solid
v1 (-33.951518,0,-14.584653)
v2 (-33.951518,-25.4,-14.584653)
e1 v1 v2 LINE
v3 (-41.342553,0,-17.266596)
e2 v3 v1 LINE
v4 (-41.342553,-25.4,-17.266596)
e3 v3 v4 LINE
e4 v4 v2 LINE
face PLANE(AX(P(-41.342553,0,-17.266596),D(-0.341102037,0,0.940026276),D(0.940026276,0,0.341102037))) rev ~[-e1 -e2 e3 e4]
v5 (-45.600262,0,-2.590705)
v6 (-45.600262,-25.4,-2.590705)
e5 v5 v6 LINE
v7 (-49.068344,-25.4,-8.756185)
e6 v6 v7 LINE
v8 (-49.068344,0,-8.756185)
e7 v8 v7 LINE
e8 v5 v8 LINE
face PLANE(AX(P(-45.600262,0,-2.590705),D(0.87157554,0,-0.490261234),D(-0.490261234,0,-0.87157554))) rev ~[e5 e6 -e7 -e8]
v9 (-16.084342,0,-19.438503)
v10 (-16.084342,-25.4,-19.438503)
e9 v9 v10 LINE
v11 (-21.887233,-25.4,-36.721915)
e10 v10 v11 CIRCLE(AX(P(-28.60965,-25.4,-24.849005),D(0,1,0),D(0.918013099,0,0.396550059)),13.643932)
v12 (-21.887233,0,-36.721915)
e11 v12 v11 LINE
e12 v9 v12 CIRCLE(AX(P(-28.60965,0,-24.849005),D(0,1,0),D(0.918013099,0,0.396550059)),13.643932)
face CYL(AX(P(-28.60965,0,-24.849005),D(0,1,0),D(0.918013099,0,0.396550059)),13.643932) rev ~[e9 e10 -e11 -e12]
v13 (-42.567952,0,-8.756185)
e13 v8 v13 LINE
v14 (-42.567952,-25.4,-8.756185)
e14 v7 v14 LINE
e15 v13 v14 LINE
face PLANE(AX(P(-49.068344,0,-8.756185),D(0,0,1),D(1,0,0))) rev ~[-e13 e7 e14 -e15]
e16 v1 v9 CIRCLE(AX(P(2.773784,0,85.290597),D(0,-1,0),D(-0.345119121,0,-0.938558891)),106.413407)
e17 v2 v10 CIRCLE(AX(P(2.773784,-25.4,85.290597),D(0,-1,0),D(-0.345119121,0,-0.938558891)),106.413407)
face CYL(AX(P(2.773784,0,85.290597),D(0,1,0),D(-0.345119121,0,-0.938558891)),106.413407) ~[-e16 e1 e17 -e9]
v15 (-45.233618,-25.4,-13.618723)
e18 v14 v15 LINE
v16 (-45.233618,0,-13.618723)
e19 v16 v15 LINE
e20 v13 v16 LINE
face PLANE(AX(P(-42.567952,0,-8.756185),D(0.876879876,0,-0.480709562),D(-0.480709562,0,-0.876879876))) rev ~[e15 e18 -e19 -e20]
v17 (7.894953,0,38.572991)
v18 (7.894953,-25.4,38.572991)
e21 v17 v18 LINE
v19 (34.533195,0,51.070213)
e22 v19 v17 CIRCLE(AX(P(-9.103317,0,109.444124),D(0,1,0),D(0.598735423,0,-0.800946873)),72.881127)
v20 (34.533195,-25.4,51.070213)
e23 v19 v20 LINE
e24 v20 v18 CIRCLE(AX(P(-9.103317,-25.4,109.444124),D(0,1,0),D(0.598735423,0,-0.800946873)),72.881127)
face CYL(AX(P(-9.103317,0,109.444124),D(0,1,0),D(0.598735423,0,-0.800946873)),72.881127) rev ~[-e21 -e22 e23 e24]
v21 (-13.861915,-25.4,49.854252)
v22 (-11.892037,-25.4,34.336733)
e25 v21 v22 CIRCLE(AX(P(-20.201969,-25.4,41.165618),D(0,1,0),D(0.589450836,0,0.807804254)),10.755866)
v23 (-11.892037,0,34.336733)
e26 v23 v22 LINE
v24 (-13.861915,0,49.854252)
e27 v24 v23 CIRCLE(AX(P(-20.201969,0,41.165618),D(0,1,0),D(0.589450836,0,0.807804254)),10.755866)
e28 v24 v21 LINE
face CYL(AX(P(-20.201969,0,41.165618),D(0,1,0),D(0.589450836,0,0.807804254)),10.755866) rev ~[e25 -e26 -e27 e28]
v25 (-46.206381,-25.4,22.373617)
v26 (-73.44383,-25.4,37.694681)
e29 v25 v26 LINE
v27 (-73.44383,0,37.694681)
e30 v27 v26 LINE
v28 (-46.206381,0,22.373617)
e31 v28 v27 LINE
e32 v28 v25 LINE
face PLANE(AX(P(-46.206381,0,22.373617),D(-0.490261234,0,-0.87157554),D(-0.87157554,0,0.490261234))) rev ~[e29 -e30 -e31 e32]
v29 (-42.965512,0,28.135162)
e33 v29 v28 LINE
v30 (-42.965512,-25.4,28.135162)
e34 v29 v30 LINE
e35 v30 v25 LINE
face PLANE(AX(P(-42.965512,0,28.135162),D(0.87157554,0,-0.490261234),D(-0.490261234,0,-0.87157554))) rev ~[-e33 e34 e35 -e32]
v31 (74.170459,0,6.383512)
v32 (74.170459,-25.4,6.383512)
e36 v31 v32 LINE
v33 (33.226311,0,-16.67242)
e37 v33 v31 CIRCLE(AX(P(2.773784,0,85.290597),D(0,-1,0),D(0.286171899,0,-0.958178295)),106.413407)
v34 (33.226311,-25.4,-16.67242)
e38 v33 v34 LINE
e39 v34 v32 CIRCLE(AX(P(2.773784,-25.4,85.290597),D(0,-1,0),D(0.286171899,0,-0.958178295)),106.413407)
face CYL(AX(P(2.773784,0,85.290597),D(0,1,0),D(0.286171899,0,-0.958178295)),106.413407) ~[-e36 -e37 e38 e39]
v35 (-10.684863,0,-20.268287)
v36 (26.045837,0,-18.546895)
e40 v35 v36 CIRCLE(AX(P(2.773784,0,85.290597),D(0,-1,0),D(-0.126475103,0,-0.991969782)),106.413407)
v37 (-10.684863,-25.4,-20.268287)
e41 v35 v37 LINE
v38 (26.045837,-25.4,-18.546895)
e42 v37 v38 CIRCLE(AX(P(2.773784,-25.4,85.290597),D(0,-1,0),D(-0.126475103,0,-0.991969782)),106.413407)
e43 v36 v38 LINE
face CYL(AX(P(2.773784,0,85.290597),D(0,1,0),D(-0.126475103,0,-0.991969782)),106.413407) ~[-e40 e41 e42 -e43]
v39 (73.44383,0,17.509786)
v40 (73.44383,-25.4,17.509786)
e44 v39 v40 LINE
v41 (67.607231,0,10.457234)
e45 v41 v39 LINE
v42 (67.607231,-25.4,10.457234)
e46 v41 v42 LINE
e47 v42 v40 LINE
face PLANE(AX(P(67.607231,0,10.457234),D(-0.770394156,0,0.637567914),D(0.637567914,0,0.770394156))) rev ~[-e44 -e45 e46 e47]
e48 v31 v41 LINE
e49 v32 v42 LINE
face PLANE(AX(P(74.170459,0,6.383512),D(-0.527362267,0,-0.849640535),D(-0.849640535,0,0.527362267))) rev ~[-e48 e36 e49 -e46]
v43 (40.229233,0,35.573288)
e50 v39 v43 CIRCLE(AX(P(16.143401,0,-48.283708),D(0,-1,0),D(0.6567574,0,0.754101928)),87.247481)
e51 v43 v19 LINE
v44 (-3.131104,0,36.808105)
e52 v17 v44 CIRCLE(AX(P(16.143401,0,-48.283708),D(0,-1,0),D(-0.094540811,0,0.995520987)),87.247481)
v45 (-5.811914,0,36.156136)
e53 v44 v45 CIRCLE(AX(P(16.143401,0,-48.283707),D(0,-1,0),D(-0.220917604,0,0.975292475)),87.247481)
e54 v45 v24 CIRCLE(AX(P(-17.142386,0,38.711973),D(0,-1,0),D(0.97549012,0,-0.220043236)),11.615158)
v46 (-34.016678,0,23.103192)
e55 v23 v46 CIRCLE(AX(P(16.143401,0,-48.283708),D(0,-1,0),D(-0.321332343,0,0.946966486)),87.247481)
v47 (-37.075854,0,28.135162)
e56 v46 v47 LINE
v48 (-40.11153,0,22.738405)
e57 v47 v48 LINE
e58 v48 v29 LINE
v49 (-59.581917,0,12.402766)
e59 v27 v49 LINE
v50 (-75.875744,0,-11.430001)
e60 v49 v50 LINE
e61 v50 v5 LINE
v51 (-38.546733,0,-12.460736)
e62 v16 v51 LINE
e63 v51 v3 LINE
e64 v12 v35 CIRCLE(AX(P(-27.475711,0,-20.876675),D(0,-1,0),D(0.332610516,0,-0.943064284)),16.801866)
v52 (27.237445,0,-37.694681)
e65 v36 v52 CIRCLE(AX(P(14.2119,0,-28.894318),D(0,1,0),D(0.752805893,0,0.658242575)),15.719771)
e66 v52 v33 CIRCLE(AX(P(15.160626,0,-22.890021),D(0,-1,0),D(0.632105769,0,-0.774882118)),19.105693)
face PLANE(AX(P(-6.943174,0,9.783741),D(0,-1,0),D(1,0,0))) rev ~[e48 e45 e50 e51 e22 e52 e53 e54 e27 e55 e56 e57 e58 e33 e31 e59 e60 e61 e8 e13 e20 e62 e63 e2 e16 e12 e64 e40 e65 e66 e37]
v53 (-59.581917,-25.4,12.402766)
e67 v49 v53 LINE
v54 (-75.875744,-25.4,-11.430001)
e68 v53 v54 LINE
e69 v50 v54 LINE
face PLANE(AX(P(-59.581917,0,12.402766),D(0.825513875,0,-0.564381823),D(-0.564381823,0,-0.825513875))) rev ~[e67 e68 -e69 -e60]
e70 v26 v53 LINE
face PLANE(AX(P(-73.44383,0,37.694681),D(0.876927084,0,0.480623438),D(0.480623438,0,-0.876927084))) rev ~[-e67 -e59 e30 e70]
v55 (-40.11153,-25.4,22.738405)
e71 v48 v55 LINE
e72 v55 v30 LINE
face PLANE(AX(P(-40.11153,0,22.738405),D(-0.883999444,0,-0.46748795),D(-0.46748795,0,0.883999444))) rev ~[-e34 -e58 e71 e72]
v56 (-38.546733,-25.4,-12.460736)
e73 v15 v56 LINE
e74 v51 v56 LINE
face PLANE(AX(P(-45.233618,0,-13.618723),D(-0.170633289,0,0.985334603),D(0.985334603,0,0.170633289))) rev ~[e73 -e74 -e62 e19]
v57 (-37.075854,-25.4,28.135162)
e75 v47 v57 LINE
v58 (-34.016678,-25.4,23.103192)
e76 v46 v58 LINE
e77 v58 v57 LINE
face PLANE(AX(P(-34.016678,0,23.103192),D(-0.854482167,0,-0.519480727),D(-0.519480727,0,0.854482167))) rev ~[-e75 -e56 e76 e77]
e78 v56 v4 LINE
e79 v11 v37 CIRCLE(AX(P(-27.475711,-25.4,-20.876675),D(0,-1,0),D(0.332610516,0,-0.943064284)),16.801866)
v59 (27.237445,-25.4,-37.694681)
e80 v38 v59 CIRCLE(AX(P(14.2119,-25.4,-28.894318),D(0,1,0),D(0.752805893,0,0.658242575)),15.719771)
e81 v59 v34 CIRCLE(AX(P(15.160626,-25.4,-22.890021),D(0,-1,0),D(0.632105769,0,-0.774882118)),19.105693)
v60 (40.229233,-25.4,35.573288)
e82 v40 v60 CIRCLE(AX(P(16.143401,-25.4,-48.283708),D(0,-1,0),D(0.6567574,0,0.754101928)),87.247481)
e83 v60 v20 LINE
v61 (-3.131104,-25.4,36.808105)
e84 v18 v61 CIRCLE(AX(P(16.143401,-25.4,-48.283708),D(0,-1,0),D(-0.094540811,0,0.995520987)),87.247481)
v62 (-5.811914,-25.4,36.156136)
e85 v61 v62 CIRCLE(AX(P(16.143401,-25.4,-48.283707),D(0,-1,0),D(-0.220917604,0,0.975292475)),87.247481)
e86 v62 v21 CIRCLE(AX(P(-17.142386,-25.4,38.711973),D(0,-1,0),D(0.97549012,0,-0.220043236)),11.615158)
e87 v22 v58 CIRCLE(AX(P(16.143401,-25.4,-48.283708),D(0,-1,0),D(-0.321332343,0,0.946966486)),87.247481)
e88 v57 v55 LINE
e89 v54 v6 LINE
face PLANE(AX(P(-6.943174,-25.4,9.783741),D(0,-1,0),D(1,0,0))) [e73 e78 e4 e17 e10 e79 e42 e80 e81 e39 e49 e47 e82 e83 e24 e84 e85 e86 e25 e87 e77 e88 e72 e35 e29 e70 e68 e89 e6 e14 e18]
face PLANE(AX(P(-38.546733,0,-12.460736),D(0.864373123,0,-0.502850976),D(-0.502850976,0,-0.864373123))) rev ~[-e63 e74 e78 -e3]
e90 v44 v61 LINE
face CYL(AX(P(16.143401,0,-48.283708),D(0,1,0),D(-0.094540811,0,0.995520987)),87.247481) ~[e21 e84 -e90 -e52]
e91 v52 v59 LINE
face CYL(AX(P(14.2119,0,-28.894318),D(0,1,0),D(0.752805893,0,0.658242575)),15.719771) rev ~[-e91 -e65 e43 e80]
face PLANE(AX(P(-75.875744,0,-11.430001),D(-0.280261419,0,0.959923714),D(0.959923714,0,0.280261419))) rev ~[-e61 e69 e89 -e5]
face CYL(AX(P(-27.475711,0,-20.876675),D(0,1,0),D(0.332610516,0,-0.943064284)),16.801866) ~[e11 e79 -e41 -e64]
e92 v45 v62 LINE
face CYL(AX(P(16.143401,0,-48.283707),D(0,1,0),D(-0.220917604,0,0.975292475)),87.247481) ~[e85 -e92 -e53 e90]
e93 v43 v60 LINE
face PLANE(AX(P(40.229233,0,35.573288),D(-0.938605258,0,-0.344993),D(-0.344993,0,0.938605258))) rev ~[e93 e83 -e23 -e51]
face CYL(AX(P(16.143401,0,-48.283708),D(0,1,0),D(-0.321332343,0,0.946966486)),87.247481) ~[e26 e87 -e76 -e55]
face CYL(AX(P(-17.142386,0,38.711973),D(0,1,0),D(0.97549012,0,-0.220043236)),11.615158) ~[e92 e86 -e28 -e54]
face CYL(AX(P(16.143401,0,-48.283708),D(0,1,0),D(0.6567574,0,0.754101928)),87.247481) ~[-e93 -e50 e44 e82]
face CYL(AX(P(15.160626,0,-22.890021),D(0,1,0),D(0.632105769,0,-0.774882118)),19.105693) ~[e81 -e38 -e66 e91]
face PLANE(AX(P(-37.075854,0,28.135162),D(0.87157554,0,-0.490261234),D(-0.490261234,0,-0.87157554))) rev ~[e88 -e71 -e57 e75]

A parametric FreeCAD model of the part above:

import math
import FreeCAD as App
import Part
import Sketcher

V = App.Vector
Q = App.Units.Quantity

doc = App.newDocument("Part")
params = doc.addObject("Spreadsheet::Sheet", "Params")
for row, (alias, value) in enumerate([
    ("pad1_length", "1 in"),
], start=1):
    params.set(f"A{row}", alias)
    params.set(f"B{row}", "=" + value)
    params.setAlias(f"B{row}", alias)

body = doc.addObject("PartDesign::Body", "Body")

# Sketch on XZ plane
sketch1 = doc.addObject("Sketcher::SketchObject", "Sketch")
body.addObject(sketch1)
sketch1.AttachmentSupport = (doc.XZ_Plane, [""])
sketch1.MapMode = "FlatFace"
sketch1.addGeometry([
    Part.LineSegment(V(-46.2, 22.4, 0), V(-73.4, 37.7, 0)),  # 0
    Part.LineSegment(V(-73.4, 37.7, 0), V(-59.6, 12.4, 0)),  # 1
    Part.LineSegment(V(-59.6, 12.4, 0), V(-75.9, -11.4, 0)),  # 2
    Part.LineSegment(V(-75.9, -11.4, 0), V(-45.6, -2.6, 0)),  # 3
    Part.LineSegment(V(-45.6, -2.6, 0), V(-49.1, -8.8, 0)),  # 4
    Part.LineSegment(V(-49.1, -8.8, 0), V(-42.6, -8.8, 0)),  # 5
    Part.LineSegment(V(-42.6, -8.8, 0), V(-45.2, -13.6, 0)),  # 6
    Part.LineSegment(V(-45.2, -13.6, 0), V(-38.5, -12.5, 0)),  # 7
    Part.LineSegment(V(-38.5, -12.5, 0), V(-41.3, -17.3, 0)),  # 8
    Part.LineSegment(V(-41.3, -17.3, 0), V(-34, -14.6, 0)),  # 9
    Part.ArcOfCircle(Part.Circle(V(2.8, 85.3, 0), V(0, 0, 1), 106.4), math.radians(-110.19), math.radians(-100.21)),  # 10
    Part.ArcOfCircle(Part.Circle(V(-28.6, -24.8, 0), V(0, 0, 1), 13.6), math.radians(-60), math.radians(23)),  # 11
    Part.ArcOfCircle(Part.Circle(V(-27.5, -20.9, 0), V(0, 0, 1), 16.8), math.radians(-71), math.radians(2)),  # 12
    Part.ArcOfCircle(Part.Circle(V(2.8, 85.3, 0), V(0, 0, 1), 106.4), math.radians(-97.27), math.radians(-77.37)),  # 13
    Part.ArcOfCircle(Part.Circle(V(14.2, -28.9, 0), V(0, 0, 1), 15.7), math.radians(-34), math.radians(41)),  # 14
    Part.ArcOfCircle(Part.Circle(V(15.2, -22.9, 0), V(0, 0, 1), 19.1), math.radians(-51), math.radians(19)),  # 15
    Part.ArcOfCircle(Part.Circle(V(2.8, 85.3, 0), V(0, 0, 1), 106.4), math.radians(-73), math.radians(-48)),  # 16
    Part.LineSegment(V(74.2, 6.4, 0), V(67.6, 10.5, 0)),  # 17
    Part.LineSegment(V(67.6, 10.5, 0), V(73.4, 17.5, 0)),  # 18
    Part.ArcOfCircle(Part.Circle(V(16.1, -48.3, 0), V(0, 0, 1), 87.2), math.radians(49), math.radians(74)),  # 19
    Part.LineSegment(V(40.2, 35.6, 0), V(34.5, 51.1, 0)),  # 20
    Part.ArcOfCircle(Part.Circle(V(-9.1, 109.4, 0), V(0, 0, 1), 72.9), math.radians(-77), math.radians(-53)),  # 21
    Part.ArcOfCircle(Part.Circle(V(16.1, -48.3, 0), V(0, 0, 1), 87.2), math.radians(95.42), math.radians(102.76)),  # 22
    Part.ArcOfCircle(Part.Circle(V(16.1, -48.3, 0), V(0, 0, 1), 87.2), math.radians(102.76), math.radians(104.57)),  # 23
    Part.ArcOfCircle(Part.Circle(V(-17.1, 38.7, 0), V(0, 0, 1), 11.6), math.radians(-13), math.radians(74)),  # 24
    Part.ArcOfCircle(Part.Circle(V(-20.2, 41.2, 0), V(0, 0, 1), 10.8), math.radians(-39), math.radians(54)),  # 25
    Part.ArcOfCircle(Part.Circle(V(16.1, -48.3, 0), V(0, 0, 1), 87.2), math.radians(108.74), math.radians(125.09)),  # 26
    Part.LineSegment(V(-34, 23.1, 0), V(-37.1, 28.1, 0)),  # 27
    Part.LineSegment(V(-37.1, 28.1, 0), V(-40.1, 22.7, 0)),  # 28
    Part.LineSegment(V(-40.1, 22.7, 0), V(-43, 28.1, 0)),  # 29
    Part.LineSegment(V(-43, 28.1, 0), V(-46.2, 22.4, 0)),  # 30
], False)
sketch1.addConstraint([
    Sketcher.Constraint("Coincident", 0, 2, 1, 1),
    Sketcher.Constraint("Coincident", 1, 2, 2, 1),
    Sketcher.Constraint("Coincident", 2, 2, 3, 1),
    Sketcher.Constraint("Coincident", 3, 2, 4, 1),
    Sketcher.Constraint("Coincident", 4, 2, 5, 1),
    Sketcher.Constraint("Coincident", 5, 2, 6, 1),
    Sketcher.Constraint("Coincident", 6, 2, 7, 1),
    Sketcher.Constraint("Coincident", 7, 2, 8, 1),
    Sketcher.Constraint("Coincident", 8, 2, 9, 1),
    Sketcher.Constraint("Coincident", 9, 2, 10, 1),
    Sketcher.Constraint("Coincident", 10, 2, 11, 2),
    Sketcher.Constraint("Coincident", 11, 1, 12, 1),
    Sketcher.Constraint("Coincident", 12, 2, 13, 1),
    Sketcher.Constraint("Coincident", 13, 2, 14, 2),
    Sketcher.Constraint("Coincident", 14, 1, 15, 1),
    Sketcher.Constraint("Coincident", 15, 2, 16, 1),
    Sketcher.Constraint("Coincident", 16, 2, 17, 1),
    Sketcher.Constraint("Coincident", 17, 2, 18, 1),
    Sketcher.Constraint("Coincident", 18, 2, 19, 1),
    Sketcher.Constraint("Coincident", 19, 2, 20, 1),
    Sketcher.Constraint("Coincident", 20, 2, 21, 2),
    Sketcher.Constraint("Coincident", 21, 1, 22, 1),
    Sketcher.Constraint("Tangent", 22, 2, 23, 1),
    Sketcher.Constraint("Coincident", 23, 2, 24, 1),
    Sketcher.Constraint("Coincident", 24, 2, 25, 2),
    Sketcher.Constraint("Coincident", 25, 1, 26, 1),
    Sketcher.Constraint("Coincident", 26, 2, 27, 1),
    Sketcher.Constraint("Coincident", 27, 2, 28, 1),
    Sketcher.Constraint("Coincident", 28, 2, 29, 1),
    Sketcher.Constraint("Coincident", 29, 2, 30, 1),
    Sketcher.Constraint("Coincident", 30, 2, 0, 1),
    Sketcher.Constraint("Horizontal", 5),
    Sketcher.Constraint("Coincident", 13, 3, 10, 3),
    Sketcher.Constraint("Coincident", 16, 3, 10, 3),
    Sketcher.Constraint("Coincident", 22, 3, 19, 3),
    Sketcher.Constraint("Coincident", 26, 3, 19, 3),
    Sketcher.Constraint("Equal", 10, 13),
    Sketcher.Constraint("Equal", 13, 16),
    Sketcher.Constraint("Equal", 19, 22),
    Sketcher.Constraint("Equal", 22, 23),
    Sketcher.Constraint("Equal", 23, 26),
    Sketcher.Constraint("Perpendicular", 0, 4),
    Sketcher.Constraint("Parallel", 4, 28),
    Sketcher.Constraint("Parallel", 28, 30),
    Sketcher.Constraint("Horizontal", 27, 2, 29, 2),
    Sketcher.Constraint("DistanceY", 2, 2, -1, 1, Q("0.45 in")),
    Sketcher.Constraint("Radius", 14, Q("15.719771 mm")),
    Sketcher.Constraint("Radius", 19, Q("87.247481 mm")),
    Sketcher.Constraint("Radius", 10, Q("106.413407 mm")),
    Sketcher.Constraint("Radius", 11, Q("13.643932 mm")),
    Sketcher.Constraint("Radius", 12, Q("16.801866 mm")),
    Sketcher.Constraint("Radius", 15, Q("19.105693 mm")),
    Sketcher.Constraint("Radius", 21, Q("72.881127 mm")),
    Sketcher.Constraint("Radius", 24, Q("11.615158 mm")),
    Sketcher.Constraint("Radius", 25, Q("10.755866 mm")),
    Sketcher.Constraint("DistanceX", 22, 2, 19, 2, Q("1.7070999 in")),
    Sketcher.Constraint("DistanceX", 5, 1, 5, 2, Q("6.500392 mm")),
    Sketcher.Constraint("DistanceX", -1, 1, 14, 3, Q("14.2119 mm")),
    Sketcher.Constraint("DistanceX", -1, 1, 19, 3, Q("16.143401 mm")),
    Sketcher.Constraint("DistanceY", 11, 3, 10, 3, Q("110.139602 mm")),
    Sketcher.Constraint("DistanceX", 21, 3, 13, 3, Q("11.877101 mm")),
    Sketcher.Constraint("DistanceY", 12, 3, 21, 3, Q("130.320799 mm")),
    Sketcher.Constraint("DistanceY", 11, 3, 3, 2, Q("22.2583 mm")),
    Sketcher.Constraint("DistanceX", 2, 2, 4, 2, Q("26.8074 mm")),
    Sketcher.Constraint("DistanceX", 5, 2, 11, 3, Q("13.958302 mm")),
    Sketcher.Constraint("DistanceX", 5, 2, 8, 2, Q("1.2254 mm")),
    Sketcher.Constraint("DistanceX", 6, 2, 9, 2, Q("11.282101 mm")),
    Sketcher.Constraint("DistanceY", 15, 3, 15, 2, Q("6.217601 mm")),
    Sketcher.Constraint("DistanceX", 17, 2, 18, 2, Q("5.836599 mm")),
    Sketcher.Constraint("DistanceX", 19, 2, 17, 2, Q("27.377999 mm")),
    Sketcher.Constraint("DistanceY", 18, 2, 19, 2, Q("18.063502 mm")),
    Sketcher.Constraint("DistanceX", 22, 2, 20, 2, Q("37.664299 mm")),
    Sketcher.Constraint("DistanceX", 24, 2, 23, 2, Q("8.050001 mm")),
    Sketcher.Constraint("Distance", 0, Q("31.250818 mm")),
    Sketcher.Constraint("Distance", 2, Q("28.87022 mm")),
    Sketcher.Constraint("Distance", 7, Q("6.786411 mm")),
    Sketcher.Constraint("Distance", 17, Q("7.724711 mm")),
    Sketcher.Constraint("Distance", 20, Q("16.510588 mm")),
    Sketcher.Constraint("Distance", 27, Q("5.888911 mm")),
    Sketcher.Constraint("DistanceX", 11, 3, -1, 1, Q("28.60965 mm")),
    Sketcher.Constraint("DistanceX", 12, 3, -1, 1, Q("27.475711 mm")),
    Sketcher.Constraint("DistanceY", 14, 3, -1, 1, Q("28.894318 mm")),
    Sketcher.Constraint("DistanceY", 15, 3, -1, 1, Q("22.890021 mm")),
    Sketcher.Constraint("DistanceX", 25, 3, -1, 1, Q("20.201969 mm")),
    Sketcher.Constraint("DistanceY", -1, 1, 25, 3, Q("41.165618 mm")),
    Sketcher.Constraint("DistanceX", 0, 2, -1, 1, Q("73.44383 mm")),
    Sketcher.Constraint("DistanceY", -1, 1, 0, 2, Q("37.694681 mm")),
    Sketcher.Constraint("DistanceX", 3, 2, -1, 1, Q("45.600262 mm")),
    Sketcher.Constraint("DistanceX", 6, 2, -1, 1, Q("45.233618 mm")),
    Sketcher.Constraint("DistanceY", 14, 1, -1, 1, Q("37.694681 mm")),
    Sketcher.Constraint("DistanceX", -1, 1, 16, 2, Q("74.170459 mm")),
    Sketcher.Constraint("DistanceY", -1, 1, 19, 2, Q("35.573288 mm")),
    Sketcher.Constraint("DistanceY", -1, 1, 21, 1, Q("38.572991 mm")),
    Sketcher.Constraint("DistanceX", 26, 2, -1, 1, Q("34.016678 mm")),
    Sketcher.Constraint("DistanceY", -1, 1, 27, 2, Q("28.135162 mm")),
    Sketcher.Constraint("DistanceX", 28, 2, -1, 1, Q("40.11153 mm")),
    Sketcher.Constraint("DistanceX", 30, 2, -1, 1, Q("46.206381 mm")),
    Sketcher.Constraint("DistanceX", 24, 3, 10, 3, Q("19.91617 mm")),
    Sketcher.Constraint("DistanceY", 12, 3, 1, 2, Q("33.279441 mm")),
    Sketcher.Constraint("DistanceY", 6, 2, 5, 2, Q("4.862539 mm")),
    Sketcher.Constraint("DistanceX", 5, 2, 7, 2, Q("4.021219 mm")),
    Sketcher.Constraint("DistanceY", 8, 2, 7, 2, Q("4.80586 mm")),
])
pad1 = doc.addObject("PartDesign::Pad", "Pad")
body.addObject(pad1)
pad1.Profile = sketch1
pad1.setExpression("Length", "Params.pad1_length")

doc.recompute()
